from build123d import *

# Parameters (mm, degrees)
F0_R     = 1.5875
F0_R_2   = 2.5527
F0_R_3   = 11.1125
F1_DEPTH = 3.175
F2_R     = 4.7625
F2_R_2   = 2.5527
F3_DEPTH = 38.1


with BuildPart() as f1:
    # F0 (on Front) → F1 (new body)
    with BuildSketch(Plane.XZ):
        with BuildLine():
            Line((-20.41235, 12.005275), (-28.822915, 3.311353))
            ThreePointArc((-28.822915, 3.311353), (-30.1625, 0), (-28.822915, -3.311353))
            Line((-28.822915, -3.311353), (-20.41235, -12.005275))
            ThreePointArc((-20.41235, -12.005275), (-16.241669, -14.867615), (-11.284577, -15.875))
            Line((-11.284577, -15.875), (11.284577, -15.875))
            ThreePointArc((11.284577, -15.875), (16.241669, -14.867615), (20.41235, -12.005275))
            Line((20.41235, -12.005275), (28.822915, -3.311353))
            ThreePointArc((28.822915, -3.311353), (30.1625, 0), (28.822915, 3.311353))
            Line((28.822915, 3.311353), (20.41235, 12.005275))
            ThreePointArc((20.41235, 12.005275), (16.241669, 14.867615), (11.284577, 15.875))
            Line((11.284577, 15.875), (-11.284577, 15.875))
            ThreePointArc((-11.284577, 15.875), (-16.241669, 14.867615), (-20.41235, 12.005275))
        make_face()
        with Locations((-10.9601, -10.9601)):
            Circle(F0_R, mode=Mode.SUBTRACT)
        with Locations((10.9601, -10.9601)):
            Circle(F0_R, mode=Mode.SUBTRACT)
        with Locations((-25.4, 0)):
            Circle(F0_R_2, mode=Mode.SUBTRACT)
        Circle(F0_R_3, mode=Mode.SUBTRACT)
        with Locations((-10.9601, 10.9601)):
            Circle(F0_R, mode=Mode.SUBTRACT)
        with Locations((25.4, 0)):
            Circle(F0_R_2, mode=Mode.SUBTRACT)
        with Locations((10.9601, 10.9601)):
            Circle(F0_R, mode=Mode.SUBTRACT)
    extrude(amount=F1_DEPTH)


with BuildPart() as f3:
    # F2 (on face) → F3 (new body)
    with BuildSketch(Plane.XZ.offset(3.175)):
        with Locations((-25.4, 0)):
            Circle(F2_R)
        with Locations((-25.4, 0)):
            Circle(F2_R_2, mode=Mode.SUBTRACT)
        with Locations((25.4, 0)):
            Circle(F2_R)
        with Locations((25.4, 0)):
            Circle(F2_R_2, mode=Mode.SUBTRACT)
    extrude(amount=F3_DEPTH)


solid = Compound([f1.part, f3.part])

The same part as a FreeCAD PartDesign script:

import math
import FreeCAD as App
import Part
import Sketcher

V = App.Vector
Q = App.Units.Quantity

doc = App.newDocument("Part")
body = doc.addObject("PartDesign::Body", "Body")

sketch1 = body.newObject("Sketcher::SketchObject", "Sketch")
sketch1.AttachmentSupport = (doc.getObject("XZ_Plane"), [""])
sketch1.MapMode = "FlatFace"
sketch1.addGeometry([
    Part.LineSegment(V(-20.4, 12, 0), V(-28.8, 3.3, 0)),
    Part.ArcOfCircle(Part.Circle(V(-25.4, 0, 0), V(0, 0, 1), 4.8), math.radians(136), math.radians(224)),
    Part.LineSegment(V(-28.8, -3.3, 0), V(-20.4, -12, 0)),
    Part.ArcOfCircle(Part.Circle(V(-11.3, -3.2, 0), V(0, 0, 1), 12.7), math.radians(-136), math.radians(-90)),
    Part.LineSegment(V(-11.3, -15.9, 0), V(11.3, -15.9, 0)),
    Part.ArcOfCircle(Part.Circle(V(11.3, -3.2, 0), V(0, 0, 1), 12.7), math.radians(-90), math.radians(-44)),
    Part.LineSegment(V(20.4, -12, 0), V(28.8, -3.3, 0)),
    Part.ArcOfCircle(Part.Circle(V(25.4, 0, 0), V(0, 0, 1), 4.8), math.radians(-44), math.radians(44)),
    Part.LineSegment(V(28.8, 3.3, 0), V(20.4, 12, 0)),
    Part.ArcOfCircle(Part.Circle(V(11.3, 3.2, 0), V(0, 0, 1), 12.7), math.radians(44), math.radians(90)),
    Part.LineSegment(V(11.3, 15.9, 0), V(-11.3, 15.9, 0)),
    Part.ArcOfCircle(Part.Circle(V(-11.3, 3.2, 0), V(0, 0, 1), 12.7), math.radians(90), math.radians(136)),
    Part.Circle(V(-11, -11, 0), V(0, 0, 1), 1.6),
    Part.Circle(V(-25.4, 0, 0), V(0, 0, 1), 2.6),
    Part.Circle(V(11, -11, 0), V(0, 0, 1), 1.6),
    Part.Circle(V(25.4, 0, 0), V(0, 0, 1), 2.6),
    Part.Circle(V(-11, 11, 0), V(0, 0, 1), 1.6),
    Part.Circle(V(0, 0, 0), V(0, 0, 1), 11.1),
    Part.Circle(V(11, 11, 0), V(0, 0, 1), 1.6),
], False)
sketch1.addConstraint([
    Sketcher.Constraint("Tangent", 0, 2, 1, 1),
    Sketcher.Constraint("Tangent", 1, 2, 2, 1),
    Sketcher.Constraint("Tangent", 2, 2, 3, 1),
    Sketcher.Constraint("Tangent", 3, 2, 4, 1),
    Sketcher.Constraint("Tangent", 4, 2, 5, 1),
    Sketcher.Constraint("Tangent", 5, 2, 6, 1),
    Sketcher.Constraint("Tangent", 6, 2, 7, 1),
    Sketcher.Constraint("Tangent", 7, 2, 8, 1),
    Sketcher.Constraint("Tangent", 8, 2, 9, 1),
    Sketcher.Constraint("Tangent", 9, 2, 10, 1),
    Sketcher.Constraint("Tangent", 10, 2, 11, 1),
    Sketcher.Constraint("Tangent", 11, 2, 0, 1),
    Sketcher.Constraint("Horizontal", 4),
    Sketcher.Constraint("Horizontal", 10),
    Sketcher.Constraint("Coincident", 17, 3, -1, 1),
    Sketcher.Constraint("Coincident", 13, 3, 1, 3),
    Sketcher.Constraint("Coincident", 15, 3, 7, 3),
    Sketcher.Constraint("Equal", 3, 5),
    Sketcher.Constraint("Equal", 1, 7),
    Sketcher.Constraint("Equal", 5, 9),
    Sketcher.Constraint("Equal", 9, 11),
    Sketcher.Constraint("Equal", 12, 14),
    Sketcher.Constraint("Equal", 13, 15),
    Sketcher.Constraint("Equal", 14, 16),
    Sketcher.Constraint("Equal", 16, 18),
    Sketcher.Constraint("Symmetric", 1, 3, 7, 3, -1, 1),
    Sketcher.Constraint("Symmetric", 3, 3, 9, 3, -1, 1),
    Sketcher.Constraint("Symmetric", 14, 3, 16, 3, -1, 1),
    Sketcher.Constraint("Symmetric", 12, 3, 18, 3, -1, 1),
    Sketcher.Constraint("Symmetric", 12, 3, 14, 3, -2),
    Sketcher.Constraint("Symmetric", 2, 2, 5, 2, -2),
    Sketcher.Constraint("Parallel", 0, 6),
    Sketcher.Constraint("Radius", 3, Q("0.4999998 in")),
    Sketcher.Constraint("Diameter", 12, Q("0.125 in")),
    Sketcher.Constraint("Diameter", 13, Q("0.201 in")),
    Sketcher.Constraint("Diameter", 17, Q("0.875 in")),
    Sketcher.Constraint("DistanceX", 1, 3, -1, 1, Q("1 in")),
    Sketcher.Constraint("Radius", 1, Q("0.1875 in")),
    Sketcher.Constraint("DistanceY", 3, 2, 11, 3, Q("0.7500002 in")),
    Sketcher.Constraint("DistanceX", 12, 3, 14, 3, Q("0.863 in")),
    Sketcher.Constraint("DistanceY", 12, 3, 16, 3, Q("0.863 in")),
    Sketcher.Constraint("Distance", 0, Q("12.096358 mm")),
])
pad1 = body.newObject("PartDesign::Pad", "Pad")
pad1.Profile = sketch1
pad1.Length = Q("0.125 in")
body2 = doc.addObject("PartDesign::Body", "Body001")
body2.AllowCompound = True

sketch2 = body2.newObject("Sketcher::SketchObject", "Sketch001")
sketch2.AttachmentSupport = (doc.getObject("XZ_Plane001"), [""])
sketch2.MapMode = "FlatFace"
sketch2.AttachmentOffset = App.Placement(V(0, 0, 0.125 * 25.4), App.Rotation())
sketch2.addGeometry([
    Part.Circle(V(-25.4, 0, 0), V(0, 0, 1), 4.8),
    Part.Circle(V(-25.4, 0, 0), V(0, 0, 1), 2.6),
    Part.Circle(V(25.4, 0, 0), V(0, 0, 1), 4.8),
    Part.Circle(V(25.4, 0, 0), V(0, 0, 1), 2.6),
], False)
sketch2.addConstraint([
    Sketcher.Constraint("Coincident", 1, 3, 0, 3),
    Sketcher.Constraint("Coincident", 3, 3, 2, 3),
    Sketcher.Constraint("Equal", 0, 2),
    Sketcher.Constraint("Equal", 1, 3),
    Sketcher.Constraint("Symmetric", 0, 3, 2, 3, -1, 1),
    Sketcher.Constraint("PointOnObject", 0, 3, -1),
    Sketcher.Constraint("Diameter", 0, Q("0.375 in")),
    Sketcher.Constraint("Diameter", 1, Q("0.201 in")),
    Sketcher.Constraint("DistanceX", 0, 3, -1, 1, Q("1 in")),
])
pad2 = body2.newObject("PartDesign::Pad", "Pad001")
pad2.Profile = sketch2
pad2.Length = Q("1.5 in")

doc.recompute()
